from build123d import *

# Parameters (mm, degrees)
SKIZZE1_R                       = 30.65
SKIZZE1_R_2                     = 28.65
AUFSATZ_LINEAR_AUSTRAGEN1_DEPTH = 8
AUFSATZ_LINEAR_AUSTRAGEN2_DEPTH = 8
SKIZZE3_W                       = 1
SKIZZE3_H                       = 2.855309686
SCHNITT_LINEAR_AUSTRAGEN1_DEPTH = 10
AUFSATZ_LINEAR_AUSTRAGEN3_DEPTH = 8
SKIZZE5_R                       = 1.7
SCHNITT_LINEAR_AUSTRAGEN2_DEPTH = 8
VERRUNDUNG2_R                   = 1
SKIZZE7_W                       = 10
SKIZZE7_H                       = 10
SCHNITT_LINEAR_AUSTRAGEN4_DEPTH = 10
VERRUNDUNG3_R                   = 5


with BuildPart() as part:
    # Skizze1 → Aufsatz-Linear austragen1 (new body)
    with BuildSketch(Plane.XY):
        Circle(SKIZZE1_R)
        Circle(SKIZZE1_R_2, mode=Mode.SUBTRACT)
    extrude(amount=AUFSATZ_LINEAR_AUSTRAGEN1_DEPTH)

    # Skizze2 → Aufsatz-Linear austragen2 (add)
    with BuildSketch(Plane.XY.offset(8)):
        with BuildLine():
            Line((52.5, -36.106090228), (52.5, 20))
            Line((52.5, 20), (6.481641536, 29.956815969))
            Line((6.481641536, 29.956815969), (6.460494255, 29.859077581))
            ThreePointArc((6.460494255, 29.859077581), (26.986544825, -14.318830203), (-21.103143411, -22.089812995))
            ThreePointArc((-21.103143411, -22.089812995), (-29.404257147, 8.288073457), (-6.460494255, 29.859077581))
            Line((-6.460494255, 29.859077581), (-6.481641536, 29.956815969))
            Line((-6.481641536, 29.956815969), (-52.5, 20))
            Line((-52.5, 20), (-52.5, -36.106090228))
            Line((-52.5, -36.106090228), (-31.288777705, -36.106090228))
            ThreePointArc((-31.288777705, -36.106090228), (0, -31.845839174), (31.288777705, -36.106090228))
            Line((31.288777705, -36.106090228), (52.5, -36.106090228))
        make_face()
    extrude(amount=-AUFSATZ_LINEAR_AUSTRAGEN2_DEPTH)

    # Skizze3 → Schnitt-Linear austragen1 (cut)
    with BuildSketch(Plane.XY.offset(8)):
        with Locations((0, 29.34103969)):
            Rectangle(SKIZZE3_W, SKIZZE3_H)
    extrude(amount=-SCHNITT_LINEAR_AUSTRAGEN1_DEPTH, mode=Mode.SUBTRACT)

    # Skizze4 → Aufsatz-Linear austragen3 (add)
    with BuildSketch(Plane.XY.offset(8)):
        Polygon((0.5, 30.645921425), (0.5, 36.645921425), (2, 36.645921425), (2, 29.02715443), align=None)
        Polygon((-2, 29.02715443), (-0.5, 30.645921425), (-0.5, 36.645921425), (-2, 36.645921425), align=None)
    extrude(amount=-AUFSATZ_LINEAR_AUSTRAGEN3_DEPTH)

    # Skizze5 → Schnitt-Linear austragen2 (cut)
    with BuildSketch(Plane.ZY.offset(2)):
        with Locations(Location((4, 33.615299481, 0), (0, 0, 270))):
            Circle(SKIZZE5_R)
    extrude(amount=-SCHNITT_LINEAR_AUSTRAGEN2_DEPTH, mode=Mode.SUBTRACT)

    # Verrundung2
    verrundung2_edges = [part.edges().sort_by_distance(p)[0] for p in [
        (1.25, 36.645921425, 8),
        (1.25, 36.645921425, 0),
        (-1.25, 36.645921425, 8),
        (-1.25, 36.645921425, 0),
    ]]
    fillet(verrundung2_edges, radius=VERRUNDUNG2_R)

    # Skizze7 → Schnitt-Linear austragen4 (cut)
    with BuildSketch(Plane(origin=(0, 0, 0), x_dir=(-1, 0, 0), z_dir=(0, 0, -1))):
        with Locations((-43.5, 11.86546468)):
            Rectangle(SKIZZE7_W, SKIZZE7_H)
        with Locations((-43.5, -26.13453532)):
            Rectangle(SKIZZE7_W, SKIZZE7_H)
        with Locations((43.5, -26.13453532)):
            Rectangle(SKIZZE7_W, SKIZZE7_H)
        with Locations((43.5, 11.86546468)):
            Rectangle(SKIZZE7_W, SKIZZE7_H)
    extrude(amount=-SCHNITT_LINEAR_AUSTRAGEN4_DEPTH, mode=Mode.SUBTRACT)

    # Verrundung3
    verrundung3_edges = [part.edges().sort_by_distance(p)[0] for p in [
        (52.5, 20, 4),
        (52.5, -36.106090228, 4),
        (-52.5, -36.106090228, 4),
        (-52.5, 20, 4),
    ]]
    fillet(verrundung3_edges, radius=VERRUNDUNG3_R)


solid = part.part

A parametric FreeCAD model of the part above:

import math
import FreeCAD as App
import Part
import Sketcher
Q = App.Units.Quantity


def edges_at(feature, points):
    """Names of the edges that pass closest to the given points."""
    edges = feature.Shape.Edges
    near = lambda p: min(range(len(edges)), key=lambda i: edges[i].distToShape(Part.Vertex(*p))[0])
    return sorted({f"Edge{near(p) + 1}" for p in points})


def add_polygon(sketch, points):
    """Adds a closed chain of lines whose ends are joined by coincident constraints."""
    first, n = sketch.GeometryCount, len(points)
    for a, b in zip(points, points[1:] + points[:1]):
        sketch.addGeometry(Part.LineSegment(App.Vector(*a, 0), App.Vector(*b, 0)), False)
    for i in range(n):
        sketch.addConstraint(Sketcher.Constraint("Coincident", first + i, 2, first + (i + 1) % n, 1))

doc = App.newDocument("Part")
body = doc.addObject("PartDesign::Body", "Body")

# Sketch on XY plane
sketch1 = body.newObject("Sketcher::SketchObject", "Sketch")
sketch1.AttachmentSupport = (doc.getObject("XY_Plane"), [""])
sketch1.MapMode = "FlatFace"
sketch1.addGeometry(Part.Circle(App.Vector(0, 0, 0), App.Vector(0, 0, 1), 30.65), False)
sketch1.addGeometry(Part.Circle(App.Vector(0, 0, 0), App.Vector(0, 0, 1), 28.65), False)
sketch1.addConstraint(Sketcher.Constraint("Coincident", 0, 3, -1, 1))
sketch1.addConstraint(Sketcher.Constraint("Coincident", 1, 3, -1, 1))
sketch1.addConstraint(Sketcher.Constraint("Diameter", 0, Q("61.3 mm")))
sketch1.addConstraint(Sketcher.Constraint("Diameter", 1, Q("57.3 mm")))
pad1 = body.newObject("PartDesign::Pad", "Pad")
pad1.Profile = sketch1
pad1.Length = 8

# Sketch on XY plane
sketch2 = body.newObject("Sketcher::SketchObject", "Sketch001")
sketch2.AttachmentSupport = (doc.getObject("XY_Plane"), [""])
sketch2.MapMode = "FlatFace"
sketch2.AttachmentOffset = App.Placement(App.Vector(0, 0, 8), App.Rotation())
sketch2.addGeometry(Part.LineSegment(App.Vector(52.5, -36.10609, 0), App.Vector(52.5, 20, 0)), False)
sketch2.addGeometry(Part.LineSegment(App.Vector(52.5, 20, 0), App.Vector(6.481642, 29.956816, 0)), False)
sketch2.addGeometry(Part.LineSegment(App.Vector(6.481642, 29.956816, 0), App.Vector(6.460494, 29.859078, 0)), False)
sketch2.addGeometry(Part.ArcOfCircle(Part.Circle(App.Vector(0, 0, 0), App.Vector(0, 0, 1), 30.55), math.radians(-133.691403), math.radians(77.791324)), False)
sketch2.addGeometry(Part.ArcOfCircle(Part.Circle(App.Vector(0, 0, 0), App.Vector(0, 0, 1), 30.55), math.radians(102.208676), math.radians(226.308597)), False)
sketch2.addGeometry(Part.LineSegment(App.Vector(-6.460494, 29.859078, 0), App.Vector(-6.481642, 29.956816, 0)), False)
sketch2.addGeometry(Part.LineSegment(App.Vector(-6.481642, 29.956816, 0), App.Vector(-52.5, 20, 0)), False)
sketch2.addGeometry(Part.LineSegment(App.Vector(-52.5, 20, 0), App.Vector(-52.5, -36.10609, 0)), False)
sketch2.addGeometry(Part.LineSegment(App.Vector(-52.5, -36.10609, 0), App.Vector(-31.288778, -36.10609, 0)), False)
sketch2.addGeometry(Part.ArcOfCircle(Part.Circle(App.Vector(0, -148.873843, 0), App.Vector(0, 0, 1), 117.028003), math.radians(74.492682), math.radians(105.507318)), False)
sketch2.addGeometry(Part.LineSegment(App.Vector(31.288778, -36.10609, 0), App.Vector(52.5, -36.10609, 0)), False)
sketch2.addConstraint(Sketcher.Constraint("Coincident", 0, 2, 1, 1))
sketch2.addConstraint(Sketcher.Constraint("Coincident", 1, 2, 2, 1))
sketch2.addConstraint(Sketcher.Constraint("Coincident", 2, 2, 3, 2))
sketch2.addConstraint(Sketcher.Constraint("Tangent", 3, 1, 4, 2))
sketch2.addConstraint(Sketcher.Constraint("Coincident", 4, 1, 5, 1))
sketch2.addConstraint(Sketcher.Constraint("Coincident", 5, 2, 6, 1))
sketch2.addConstraint(Sketcher.Constraint("Coincident", 6, 2, 7, 1))
sketch2.addConstraint(Sketcher.Constraint("Coincident", 7, 2, 8, 1))
sketch2.addConstraint(Sketcher.Constraint("Coincident", 8, 2, 9, 2))
sketch2.addConstraint(Sketcher.Constraint("Coincident", 9, 1, 10, 1))
sketch2.addConstraint(Sketcher.Constraint("Coincident", 10, 2, 0, 1))
sketch2.addConstraint(Sketcher.Constraint("Vertical", 0))
sketch2.addConstraint(Sketcher.Constraint("Vertical", 7))
sketch2.addConstraint(Sketcher.Constraint("Horizontal", 8))
sketch2.addConstraint(Sketcher.Constraint("Horizontal", 10))
sketch2.addConstraint(Sketcher.Constraint("Coincident", 3, 3, -1, 1))
sketch2.addConstraint(Sketcher.Constraint("Equal", 3, 4))
sketch2.addConstraint(Sketcher.Constraint("Symmetric", 1, 2, 5, 2, -2))
sketch2.addConstraint(Sketcher.Constraint("Symmetric", 0, 2, 6, 2, -2))
sketch2.addConstraint(Sketcher.Constraint("Symmetric", 8, 2, 9, 1, -2))
sketch2.addConstraint(Sketcher.Constraint("Perpendicular", 1, 2))
sketch2.addConstraint(Sketcher.Constraint("Perpendicular", 5, 6))
sketch2.addConstraint(Sketcher.Constraint("Radius", 3, Q("30.55 mm")))
sketch2.addConstraint(Sketcher.Constraint("DistanceY", -1, 1, 0, 2, Q("20 mm")))
sketch2.addConstraint(Sketcher.Constraint("Distance", 2, Q("0.1 mm")))
sketch2.addConstraint(Sketcher.Constraint("DistanceX", -1, 1, 0, 2, Q("52.5 mm")))
sketch2.addConstraint(Sketcher.Constraint("Radius", 9, Q("117.028003 mm")))
sketch2.addConstraint(Sketcher.Constraint("DistanceY", 0, 1, 0, 2, Q("56.10609 mm")))
sketch2.addConstraint(Sketcher.Constraint("DistanceX", 8, 1, 8, 2, Q("21.211222 mm")))
sketch2.addConstraint(Sketcher.Constraint("DistanceX", -1, 1, 1, 2, Q("6.481642 mm")))
sketch2.addConstraint(Sketcher.Constraint("DistanceY", 3, 1, 2, 2, Q("51.948891 mm")))
pad2 = body.newObject("PartDesign::Pad", "Pad001")
pad2.Profile = sketch2
pad2.Length = 8
pad2.Reversed = True

# Sketch on XY plane
sketch3 = body.newObject("Sketcher::SketchObject", "Sketch002")
sketch3.AttachmentSupport = (doc.getObject("XY_Plane"), [""])
sketch3.MapMode = "FlatFace"
sketch3.AttachmentOffset = App.Placement(App.Vector(0, 0, 8), App.Rotation())
add_polygon(sketch3, [(-0.5, 30.768695), (-0.5, 27.913385), (0.5, 27.913385), (0.5, 30.768695)])  # lines 0-3
sketch3.addConstraint(Sketcher.Constraint("Vertical", 0))
sketch3.addConstraint(Sketcher.Constraint("Horizontal", 1))
sketch3.addConstraint(Sketcher.Constraint("Vertical", 2))
sketch3.addConstraint(Sketcher.Constraint("Horizontal", 3))
sketch3.addConstraint(Sketcher.Constraint("DistanceX", 1, 1, 1, 2, Q("1 mm")))
sketch3.addConstraint(Sketcher.Constraint("DistanceX", 0, 2, -1, 1, Q("0.5 mm")))
sketch3.addConstraint(Sketcher.Constraint("DistanceY", 0, 2, 0, 1, Q("2.85531 mm")))
sketch3.addConstraint(Sketcher.Constraint("DistanceY", -1, 1, 0, 2, Q("27.913385 mm")))
pocket1 = body.newObject("PartDesign::Pocket", "Pocket")
pocket1.Profile = sketch3
pocket1.Length = 10

# Sketch on XY plane
sketch4 = body.newObject("Sketcher::SketchObject", "Sketch003")
sketch4.AttachmentSupport = (doc.getObject("XY_Plane"), [""])
sketch4.MapMode = "FlatFace"
sketch4.AttachmentOffset = App.Placement(App.Vector(0, 0, 8), App.Rotation())
add_polygon(sketch4, [(0.5, 36.645921), (0.5, 30.645921), (2, 29.027154), (2, 36.645921)])  # lines 0-3
add_polygon(sketch4, [(-2, 29.027154), (-0.5, 30.645921), (-0.5, 36.645921), (-2, 36.645921)])  # lines 4-7
sketch4.addConstraint(Sketcher.Constraint("Vertical", 0))
sketch4.addConstraint(Sketcher.Constraint("Vertical", 2))
sketch4.addConstraint(Sketcher.Constraint("Horizontal", 3))
sketch4.addConstraint(Sketcher.Constraint("Vertical", 5))
sketch4.addConstraint(Sketcher.Constraint("Horizontal", 6))
sketch4.addConstraint(Sketcher.Constraint("Vertical", 7))
sketch4.addConstraint(Sketcher.Constraint("Symmetric", 0, 2, 4, 2, -2))
sketch4.addConstraint(Sketcher.Constraint("Symmetric", 2, 2, 6, 2, -2))
sketch4.addConstraint(Sketcher.Constraint("Horizontal", 1, 2, 7, 2))
sketch4.addConstraint(Sketcher.Constraint("DistanceY", 0, 2, 0, 1, Q("6 mm")))
sketch4.addConstraint(Sketcher.Constraint("DistanceX", 3, 2, 3, 1, Q("1.5 mm")))
sketch4.addConstraint(Sketcher.Constraint("DistanceX", -1, 1, 1, 2, Q("2 mm")))
sketch4.addConstraint(Sketcher.Constraint("Distance", 1, Q("2.2069 mm")))
sketch4.addConstraint(Sketcher.Constraint("DistanceY", -1, 1, 0, 2, Q("30.645921 mm")))
pad3 = body.newObject("PartDesign::Pad", "Pad002")
pad3.Profile = sketch4
pad3.Length = 8
pad3.Reversed = True

# Sketch on YZ plane
sketch5 = body.newObject("Sketcher::SketchObject", "Sketch004")
sketch5.AttachmentSupport = (doc.getObject("YZ_Plane"), [""])
sketch5.MapMode = "FlatFace"
sketch5.AttachmentOffset = App.Placement(App.Vector(0, 0, -2), App.Rotation())
sketch5.addGeometry(Part.Circle(App.Vector(33.615299, 4, 0), App.Vector(0, 0, 1), 1.7), False)
sketch5.addConstraint(Sketcher.Constraint("Diameter", 0, Q("3.4 mm")))
sketch5.addConstraint(Sketcher.Constraint("DistanceY", -1, 1, 0, 3, Q("4 mm")))
sketch5.addConstraint(Sketcher.Constraint("DistanceX", -1, 1, 0, 3, Q("33.615299 mm")))
pocket2 = body.newObject("PartDesign::Pocket", "Pocket001")
pocket2.Profile = sketch5
pocket2.Length = 8
pocket2.Reversed = True
doc.recompute()

fillet = body.newObject("PartDesign::Fillet", "Fillet")
fillet.Base = (pocket2, edges_at(pocket2, [
    (1.25, 36.646, 8),
    (1.25, 36.646, 0),
    (-1.25, 36.646, 8),
    (-1.25, 36.646, 0),
]))
fillet.Radius = 1

# Sketch on XY plane
sketch6 = body.newObject("Sketcher::SketchObject", "Sketch005")
sketch6.AttachmentSupport = (doc.getObject("XY_Plane"), [""])
sketch6.MapMode = "FlatFace"
add_polygon(sketch6, [(48.5, 16.865465), (48.5, 6.865465), (38.5, 6.865465), (38.5, 16.865465)])  # lines 0-3
add_polygon(sketch6, [(48.5, -21.134535), (48.5, -31.134535), (38.5, -31.134535), (38.5, -21.134535)])  # lines 4-7
add_polygon(sketch6, [(-38.5, -21.134535), (-38.5, -31.134535), (-48.5, -31.134535), (-48.5, -21.134535)])  # lines 8-11
add_polygon(sketch6, [(-38.5, 16.865465), (-38.5, 6.865465), (-48.5, 6.865465), (-48.5, 16.865465)])  # lines 12-15
sketch6.addConstraint(Sketcher.Constraint("Vertical", 0))
sketch6.addConstraint(Sketcher.Constraint("Horizontal", 1))
sketch6.addConstraint(Sketcher.Constraint("Vertical", 2))
sketch6.addConstraint(Sketcher.Constraint("Horizontal", 3))
sketch6.addConstraint(Sketcher.Constraint("Vertical", 4))
sketch6.addConstraint(Sketcher.Constraint("Horizontal", 5))
sketch6.addConstraint(Sketcher.Constraint("Vertical", 6))
sketch6.addConstraint(Sketcher.Constraint("Horizontal", 7))
sketch6.addConstraint(Sketcher.Constraint("Vertical", 8))
sketch6.addConstraint(Sketcher.Constraint("Horizontal", 9))
sketch6.addConstraint(Sketcher.Constraint("Vertical", 10))
sketch6.addConstraint(Sketcher.Constraint("Horizontal", 11))
sketch6.addConstraint(Sketcher.Constraint("Vertical", 12))
sketch6.addConstraint(Sketcher.Constraint("Horizontal", 13))
sketch6.addConstraint(Sketcher.Constraint("Vertical", 14))
sketch6.addConstraint(Sketcher.Constraint("Horizontal", 15))
sketch6.addConstraint(Sketcher.Constraint("Symmetric", 5, 2, 8, 2, -2))
sketch6.addConstraint(Sketcher.Constraint("Symmetric", 7, 2, 10, 2, -2))
sketch6.addConstraint(Sketcher.Constraint("Symmetric", 1, 2, 12, 2, -2))
sketch6.addConstraint(Sketcher.Constraint("Symmetric", 3, 2, 14, 2, -2))
sketch6.addConstraint(Sketcher.Constraint("Vertical", 3, 2, 4, 2))
sketch6.addConstraint(Sketcher.Constraint("Vertical", 2, 2, 5, 2))
sketch6.addConstraint(Sketcher.Constraint("Equal", 15, 0))
sketch6.addConstraint(Sketcher.Constraint("Equal", 2, 4))
sketch6.addConstraint(Sketcher.Constraint("DistanceX", 1, 2, 1, 1, Q("10 mm")))
sketch6.addConstraint(Sketcher.Constraint("DistanceY", 4, 2, 0, 2, Q("38 mm")))
sketch6.addConstraint(Sketcher.Constraint("DistanceX", 8, 2, 5, 2, Q("77 mm")))
sketch6.addConstraint(Sketcher.Constraint("DistanceY", -1, 1, 0, 2, Q("6.865465 mm")))
pocket3 = body.newObject("PartDesign::Pocket", "Pocket002")
pocket3.Profile = sketch6
pocket3.Length = 10
pocket3.Reversed = True
doc.recompute()

fillet2 = body.newObject("PartDesign::Fillet", "Fillet001")
fillet2.Base = (pocket3, edges_at(pocket3, [
    (52.5, 20, 4),
    (52.5, -36.106, 4),
    (-52.5, -36.106, 4),
    (-52.5, 20, 4),
]))
fillet2.Radius = 5

doc.recompute()
